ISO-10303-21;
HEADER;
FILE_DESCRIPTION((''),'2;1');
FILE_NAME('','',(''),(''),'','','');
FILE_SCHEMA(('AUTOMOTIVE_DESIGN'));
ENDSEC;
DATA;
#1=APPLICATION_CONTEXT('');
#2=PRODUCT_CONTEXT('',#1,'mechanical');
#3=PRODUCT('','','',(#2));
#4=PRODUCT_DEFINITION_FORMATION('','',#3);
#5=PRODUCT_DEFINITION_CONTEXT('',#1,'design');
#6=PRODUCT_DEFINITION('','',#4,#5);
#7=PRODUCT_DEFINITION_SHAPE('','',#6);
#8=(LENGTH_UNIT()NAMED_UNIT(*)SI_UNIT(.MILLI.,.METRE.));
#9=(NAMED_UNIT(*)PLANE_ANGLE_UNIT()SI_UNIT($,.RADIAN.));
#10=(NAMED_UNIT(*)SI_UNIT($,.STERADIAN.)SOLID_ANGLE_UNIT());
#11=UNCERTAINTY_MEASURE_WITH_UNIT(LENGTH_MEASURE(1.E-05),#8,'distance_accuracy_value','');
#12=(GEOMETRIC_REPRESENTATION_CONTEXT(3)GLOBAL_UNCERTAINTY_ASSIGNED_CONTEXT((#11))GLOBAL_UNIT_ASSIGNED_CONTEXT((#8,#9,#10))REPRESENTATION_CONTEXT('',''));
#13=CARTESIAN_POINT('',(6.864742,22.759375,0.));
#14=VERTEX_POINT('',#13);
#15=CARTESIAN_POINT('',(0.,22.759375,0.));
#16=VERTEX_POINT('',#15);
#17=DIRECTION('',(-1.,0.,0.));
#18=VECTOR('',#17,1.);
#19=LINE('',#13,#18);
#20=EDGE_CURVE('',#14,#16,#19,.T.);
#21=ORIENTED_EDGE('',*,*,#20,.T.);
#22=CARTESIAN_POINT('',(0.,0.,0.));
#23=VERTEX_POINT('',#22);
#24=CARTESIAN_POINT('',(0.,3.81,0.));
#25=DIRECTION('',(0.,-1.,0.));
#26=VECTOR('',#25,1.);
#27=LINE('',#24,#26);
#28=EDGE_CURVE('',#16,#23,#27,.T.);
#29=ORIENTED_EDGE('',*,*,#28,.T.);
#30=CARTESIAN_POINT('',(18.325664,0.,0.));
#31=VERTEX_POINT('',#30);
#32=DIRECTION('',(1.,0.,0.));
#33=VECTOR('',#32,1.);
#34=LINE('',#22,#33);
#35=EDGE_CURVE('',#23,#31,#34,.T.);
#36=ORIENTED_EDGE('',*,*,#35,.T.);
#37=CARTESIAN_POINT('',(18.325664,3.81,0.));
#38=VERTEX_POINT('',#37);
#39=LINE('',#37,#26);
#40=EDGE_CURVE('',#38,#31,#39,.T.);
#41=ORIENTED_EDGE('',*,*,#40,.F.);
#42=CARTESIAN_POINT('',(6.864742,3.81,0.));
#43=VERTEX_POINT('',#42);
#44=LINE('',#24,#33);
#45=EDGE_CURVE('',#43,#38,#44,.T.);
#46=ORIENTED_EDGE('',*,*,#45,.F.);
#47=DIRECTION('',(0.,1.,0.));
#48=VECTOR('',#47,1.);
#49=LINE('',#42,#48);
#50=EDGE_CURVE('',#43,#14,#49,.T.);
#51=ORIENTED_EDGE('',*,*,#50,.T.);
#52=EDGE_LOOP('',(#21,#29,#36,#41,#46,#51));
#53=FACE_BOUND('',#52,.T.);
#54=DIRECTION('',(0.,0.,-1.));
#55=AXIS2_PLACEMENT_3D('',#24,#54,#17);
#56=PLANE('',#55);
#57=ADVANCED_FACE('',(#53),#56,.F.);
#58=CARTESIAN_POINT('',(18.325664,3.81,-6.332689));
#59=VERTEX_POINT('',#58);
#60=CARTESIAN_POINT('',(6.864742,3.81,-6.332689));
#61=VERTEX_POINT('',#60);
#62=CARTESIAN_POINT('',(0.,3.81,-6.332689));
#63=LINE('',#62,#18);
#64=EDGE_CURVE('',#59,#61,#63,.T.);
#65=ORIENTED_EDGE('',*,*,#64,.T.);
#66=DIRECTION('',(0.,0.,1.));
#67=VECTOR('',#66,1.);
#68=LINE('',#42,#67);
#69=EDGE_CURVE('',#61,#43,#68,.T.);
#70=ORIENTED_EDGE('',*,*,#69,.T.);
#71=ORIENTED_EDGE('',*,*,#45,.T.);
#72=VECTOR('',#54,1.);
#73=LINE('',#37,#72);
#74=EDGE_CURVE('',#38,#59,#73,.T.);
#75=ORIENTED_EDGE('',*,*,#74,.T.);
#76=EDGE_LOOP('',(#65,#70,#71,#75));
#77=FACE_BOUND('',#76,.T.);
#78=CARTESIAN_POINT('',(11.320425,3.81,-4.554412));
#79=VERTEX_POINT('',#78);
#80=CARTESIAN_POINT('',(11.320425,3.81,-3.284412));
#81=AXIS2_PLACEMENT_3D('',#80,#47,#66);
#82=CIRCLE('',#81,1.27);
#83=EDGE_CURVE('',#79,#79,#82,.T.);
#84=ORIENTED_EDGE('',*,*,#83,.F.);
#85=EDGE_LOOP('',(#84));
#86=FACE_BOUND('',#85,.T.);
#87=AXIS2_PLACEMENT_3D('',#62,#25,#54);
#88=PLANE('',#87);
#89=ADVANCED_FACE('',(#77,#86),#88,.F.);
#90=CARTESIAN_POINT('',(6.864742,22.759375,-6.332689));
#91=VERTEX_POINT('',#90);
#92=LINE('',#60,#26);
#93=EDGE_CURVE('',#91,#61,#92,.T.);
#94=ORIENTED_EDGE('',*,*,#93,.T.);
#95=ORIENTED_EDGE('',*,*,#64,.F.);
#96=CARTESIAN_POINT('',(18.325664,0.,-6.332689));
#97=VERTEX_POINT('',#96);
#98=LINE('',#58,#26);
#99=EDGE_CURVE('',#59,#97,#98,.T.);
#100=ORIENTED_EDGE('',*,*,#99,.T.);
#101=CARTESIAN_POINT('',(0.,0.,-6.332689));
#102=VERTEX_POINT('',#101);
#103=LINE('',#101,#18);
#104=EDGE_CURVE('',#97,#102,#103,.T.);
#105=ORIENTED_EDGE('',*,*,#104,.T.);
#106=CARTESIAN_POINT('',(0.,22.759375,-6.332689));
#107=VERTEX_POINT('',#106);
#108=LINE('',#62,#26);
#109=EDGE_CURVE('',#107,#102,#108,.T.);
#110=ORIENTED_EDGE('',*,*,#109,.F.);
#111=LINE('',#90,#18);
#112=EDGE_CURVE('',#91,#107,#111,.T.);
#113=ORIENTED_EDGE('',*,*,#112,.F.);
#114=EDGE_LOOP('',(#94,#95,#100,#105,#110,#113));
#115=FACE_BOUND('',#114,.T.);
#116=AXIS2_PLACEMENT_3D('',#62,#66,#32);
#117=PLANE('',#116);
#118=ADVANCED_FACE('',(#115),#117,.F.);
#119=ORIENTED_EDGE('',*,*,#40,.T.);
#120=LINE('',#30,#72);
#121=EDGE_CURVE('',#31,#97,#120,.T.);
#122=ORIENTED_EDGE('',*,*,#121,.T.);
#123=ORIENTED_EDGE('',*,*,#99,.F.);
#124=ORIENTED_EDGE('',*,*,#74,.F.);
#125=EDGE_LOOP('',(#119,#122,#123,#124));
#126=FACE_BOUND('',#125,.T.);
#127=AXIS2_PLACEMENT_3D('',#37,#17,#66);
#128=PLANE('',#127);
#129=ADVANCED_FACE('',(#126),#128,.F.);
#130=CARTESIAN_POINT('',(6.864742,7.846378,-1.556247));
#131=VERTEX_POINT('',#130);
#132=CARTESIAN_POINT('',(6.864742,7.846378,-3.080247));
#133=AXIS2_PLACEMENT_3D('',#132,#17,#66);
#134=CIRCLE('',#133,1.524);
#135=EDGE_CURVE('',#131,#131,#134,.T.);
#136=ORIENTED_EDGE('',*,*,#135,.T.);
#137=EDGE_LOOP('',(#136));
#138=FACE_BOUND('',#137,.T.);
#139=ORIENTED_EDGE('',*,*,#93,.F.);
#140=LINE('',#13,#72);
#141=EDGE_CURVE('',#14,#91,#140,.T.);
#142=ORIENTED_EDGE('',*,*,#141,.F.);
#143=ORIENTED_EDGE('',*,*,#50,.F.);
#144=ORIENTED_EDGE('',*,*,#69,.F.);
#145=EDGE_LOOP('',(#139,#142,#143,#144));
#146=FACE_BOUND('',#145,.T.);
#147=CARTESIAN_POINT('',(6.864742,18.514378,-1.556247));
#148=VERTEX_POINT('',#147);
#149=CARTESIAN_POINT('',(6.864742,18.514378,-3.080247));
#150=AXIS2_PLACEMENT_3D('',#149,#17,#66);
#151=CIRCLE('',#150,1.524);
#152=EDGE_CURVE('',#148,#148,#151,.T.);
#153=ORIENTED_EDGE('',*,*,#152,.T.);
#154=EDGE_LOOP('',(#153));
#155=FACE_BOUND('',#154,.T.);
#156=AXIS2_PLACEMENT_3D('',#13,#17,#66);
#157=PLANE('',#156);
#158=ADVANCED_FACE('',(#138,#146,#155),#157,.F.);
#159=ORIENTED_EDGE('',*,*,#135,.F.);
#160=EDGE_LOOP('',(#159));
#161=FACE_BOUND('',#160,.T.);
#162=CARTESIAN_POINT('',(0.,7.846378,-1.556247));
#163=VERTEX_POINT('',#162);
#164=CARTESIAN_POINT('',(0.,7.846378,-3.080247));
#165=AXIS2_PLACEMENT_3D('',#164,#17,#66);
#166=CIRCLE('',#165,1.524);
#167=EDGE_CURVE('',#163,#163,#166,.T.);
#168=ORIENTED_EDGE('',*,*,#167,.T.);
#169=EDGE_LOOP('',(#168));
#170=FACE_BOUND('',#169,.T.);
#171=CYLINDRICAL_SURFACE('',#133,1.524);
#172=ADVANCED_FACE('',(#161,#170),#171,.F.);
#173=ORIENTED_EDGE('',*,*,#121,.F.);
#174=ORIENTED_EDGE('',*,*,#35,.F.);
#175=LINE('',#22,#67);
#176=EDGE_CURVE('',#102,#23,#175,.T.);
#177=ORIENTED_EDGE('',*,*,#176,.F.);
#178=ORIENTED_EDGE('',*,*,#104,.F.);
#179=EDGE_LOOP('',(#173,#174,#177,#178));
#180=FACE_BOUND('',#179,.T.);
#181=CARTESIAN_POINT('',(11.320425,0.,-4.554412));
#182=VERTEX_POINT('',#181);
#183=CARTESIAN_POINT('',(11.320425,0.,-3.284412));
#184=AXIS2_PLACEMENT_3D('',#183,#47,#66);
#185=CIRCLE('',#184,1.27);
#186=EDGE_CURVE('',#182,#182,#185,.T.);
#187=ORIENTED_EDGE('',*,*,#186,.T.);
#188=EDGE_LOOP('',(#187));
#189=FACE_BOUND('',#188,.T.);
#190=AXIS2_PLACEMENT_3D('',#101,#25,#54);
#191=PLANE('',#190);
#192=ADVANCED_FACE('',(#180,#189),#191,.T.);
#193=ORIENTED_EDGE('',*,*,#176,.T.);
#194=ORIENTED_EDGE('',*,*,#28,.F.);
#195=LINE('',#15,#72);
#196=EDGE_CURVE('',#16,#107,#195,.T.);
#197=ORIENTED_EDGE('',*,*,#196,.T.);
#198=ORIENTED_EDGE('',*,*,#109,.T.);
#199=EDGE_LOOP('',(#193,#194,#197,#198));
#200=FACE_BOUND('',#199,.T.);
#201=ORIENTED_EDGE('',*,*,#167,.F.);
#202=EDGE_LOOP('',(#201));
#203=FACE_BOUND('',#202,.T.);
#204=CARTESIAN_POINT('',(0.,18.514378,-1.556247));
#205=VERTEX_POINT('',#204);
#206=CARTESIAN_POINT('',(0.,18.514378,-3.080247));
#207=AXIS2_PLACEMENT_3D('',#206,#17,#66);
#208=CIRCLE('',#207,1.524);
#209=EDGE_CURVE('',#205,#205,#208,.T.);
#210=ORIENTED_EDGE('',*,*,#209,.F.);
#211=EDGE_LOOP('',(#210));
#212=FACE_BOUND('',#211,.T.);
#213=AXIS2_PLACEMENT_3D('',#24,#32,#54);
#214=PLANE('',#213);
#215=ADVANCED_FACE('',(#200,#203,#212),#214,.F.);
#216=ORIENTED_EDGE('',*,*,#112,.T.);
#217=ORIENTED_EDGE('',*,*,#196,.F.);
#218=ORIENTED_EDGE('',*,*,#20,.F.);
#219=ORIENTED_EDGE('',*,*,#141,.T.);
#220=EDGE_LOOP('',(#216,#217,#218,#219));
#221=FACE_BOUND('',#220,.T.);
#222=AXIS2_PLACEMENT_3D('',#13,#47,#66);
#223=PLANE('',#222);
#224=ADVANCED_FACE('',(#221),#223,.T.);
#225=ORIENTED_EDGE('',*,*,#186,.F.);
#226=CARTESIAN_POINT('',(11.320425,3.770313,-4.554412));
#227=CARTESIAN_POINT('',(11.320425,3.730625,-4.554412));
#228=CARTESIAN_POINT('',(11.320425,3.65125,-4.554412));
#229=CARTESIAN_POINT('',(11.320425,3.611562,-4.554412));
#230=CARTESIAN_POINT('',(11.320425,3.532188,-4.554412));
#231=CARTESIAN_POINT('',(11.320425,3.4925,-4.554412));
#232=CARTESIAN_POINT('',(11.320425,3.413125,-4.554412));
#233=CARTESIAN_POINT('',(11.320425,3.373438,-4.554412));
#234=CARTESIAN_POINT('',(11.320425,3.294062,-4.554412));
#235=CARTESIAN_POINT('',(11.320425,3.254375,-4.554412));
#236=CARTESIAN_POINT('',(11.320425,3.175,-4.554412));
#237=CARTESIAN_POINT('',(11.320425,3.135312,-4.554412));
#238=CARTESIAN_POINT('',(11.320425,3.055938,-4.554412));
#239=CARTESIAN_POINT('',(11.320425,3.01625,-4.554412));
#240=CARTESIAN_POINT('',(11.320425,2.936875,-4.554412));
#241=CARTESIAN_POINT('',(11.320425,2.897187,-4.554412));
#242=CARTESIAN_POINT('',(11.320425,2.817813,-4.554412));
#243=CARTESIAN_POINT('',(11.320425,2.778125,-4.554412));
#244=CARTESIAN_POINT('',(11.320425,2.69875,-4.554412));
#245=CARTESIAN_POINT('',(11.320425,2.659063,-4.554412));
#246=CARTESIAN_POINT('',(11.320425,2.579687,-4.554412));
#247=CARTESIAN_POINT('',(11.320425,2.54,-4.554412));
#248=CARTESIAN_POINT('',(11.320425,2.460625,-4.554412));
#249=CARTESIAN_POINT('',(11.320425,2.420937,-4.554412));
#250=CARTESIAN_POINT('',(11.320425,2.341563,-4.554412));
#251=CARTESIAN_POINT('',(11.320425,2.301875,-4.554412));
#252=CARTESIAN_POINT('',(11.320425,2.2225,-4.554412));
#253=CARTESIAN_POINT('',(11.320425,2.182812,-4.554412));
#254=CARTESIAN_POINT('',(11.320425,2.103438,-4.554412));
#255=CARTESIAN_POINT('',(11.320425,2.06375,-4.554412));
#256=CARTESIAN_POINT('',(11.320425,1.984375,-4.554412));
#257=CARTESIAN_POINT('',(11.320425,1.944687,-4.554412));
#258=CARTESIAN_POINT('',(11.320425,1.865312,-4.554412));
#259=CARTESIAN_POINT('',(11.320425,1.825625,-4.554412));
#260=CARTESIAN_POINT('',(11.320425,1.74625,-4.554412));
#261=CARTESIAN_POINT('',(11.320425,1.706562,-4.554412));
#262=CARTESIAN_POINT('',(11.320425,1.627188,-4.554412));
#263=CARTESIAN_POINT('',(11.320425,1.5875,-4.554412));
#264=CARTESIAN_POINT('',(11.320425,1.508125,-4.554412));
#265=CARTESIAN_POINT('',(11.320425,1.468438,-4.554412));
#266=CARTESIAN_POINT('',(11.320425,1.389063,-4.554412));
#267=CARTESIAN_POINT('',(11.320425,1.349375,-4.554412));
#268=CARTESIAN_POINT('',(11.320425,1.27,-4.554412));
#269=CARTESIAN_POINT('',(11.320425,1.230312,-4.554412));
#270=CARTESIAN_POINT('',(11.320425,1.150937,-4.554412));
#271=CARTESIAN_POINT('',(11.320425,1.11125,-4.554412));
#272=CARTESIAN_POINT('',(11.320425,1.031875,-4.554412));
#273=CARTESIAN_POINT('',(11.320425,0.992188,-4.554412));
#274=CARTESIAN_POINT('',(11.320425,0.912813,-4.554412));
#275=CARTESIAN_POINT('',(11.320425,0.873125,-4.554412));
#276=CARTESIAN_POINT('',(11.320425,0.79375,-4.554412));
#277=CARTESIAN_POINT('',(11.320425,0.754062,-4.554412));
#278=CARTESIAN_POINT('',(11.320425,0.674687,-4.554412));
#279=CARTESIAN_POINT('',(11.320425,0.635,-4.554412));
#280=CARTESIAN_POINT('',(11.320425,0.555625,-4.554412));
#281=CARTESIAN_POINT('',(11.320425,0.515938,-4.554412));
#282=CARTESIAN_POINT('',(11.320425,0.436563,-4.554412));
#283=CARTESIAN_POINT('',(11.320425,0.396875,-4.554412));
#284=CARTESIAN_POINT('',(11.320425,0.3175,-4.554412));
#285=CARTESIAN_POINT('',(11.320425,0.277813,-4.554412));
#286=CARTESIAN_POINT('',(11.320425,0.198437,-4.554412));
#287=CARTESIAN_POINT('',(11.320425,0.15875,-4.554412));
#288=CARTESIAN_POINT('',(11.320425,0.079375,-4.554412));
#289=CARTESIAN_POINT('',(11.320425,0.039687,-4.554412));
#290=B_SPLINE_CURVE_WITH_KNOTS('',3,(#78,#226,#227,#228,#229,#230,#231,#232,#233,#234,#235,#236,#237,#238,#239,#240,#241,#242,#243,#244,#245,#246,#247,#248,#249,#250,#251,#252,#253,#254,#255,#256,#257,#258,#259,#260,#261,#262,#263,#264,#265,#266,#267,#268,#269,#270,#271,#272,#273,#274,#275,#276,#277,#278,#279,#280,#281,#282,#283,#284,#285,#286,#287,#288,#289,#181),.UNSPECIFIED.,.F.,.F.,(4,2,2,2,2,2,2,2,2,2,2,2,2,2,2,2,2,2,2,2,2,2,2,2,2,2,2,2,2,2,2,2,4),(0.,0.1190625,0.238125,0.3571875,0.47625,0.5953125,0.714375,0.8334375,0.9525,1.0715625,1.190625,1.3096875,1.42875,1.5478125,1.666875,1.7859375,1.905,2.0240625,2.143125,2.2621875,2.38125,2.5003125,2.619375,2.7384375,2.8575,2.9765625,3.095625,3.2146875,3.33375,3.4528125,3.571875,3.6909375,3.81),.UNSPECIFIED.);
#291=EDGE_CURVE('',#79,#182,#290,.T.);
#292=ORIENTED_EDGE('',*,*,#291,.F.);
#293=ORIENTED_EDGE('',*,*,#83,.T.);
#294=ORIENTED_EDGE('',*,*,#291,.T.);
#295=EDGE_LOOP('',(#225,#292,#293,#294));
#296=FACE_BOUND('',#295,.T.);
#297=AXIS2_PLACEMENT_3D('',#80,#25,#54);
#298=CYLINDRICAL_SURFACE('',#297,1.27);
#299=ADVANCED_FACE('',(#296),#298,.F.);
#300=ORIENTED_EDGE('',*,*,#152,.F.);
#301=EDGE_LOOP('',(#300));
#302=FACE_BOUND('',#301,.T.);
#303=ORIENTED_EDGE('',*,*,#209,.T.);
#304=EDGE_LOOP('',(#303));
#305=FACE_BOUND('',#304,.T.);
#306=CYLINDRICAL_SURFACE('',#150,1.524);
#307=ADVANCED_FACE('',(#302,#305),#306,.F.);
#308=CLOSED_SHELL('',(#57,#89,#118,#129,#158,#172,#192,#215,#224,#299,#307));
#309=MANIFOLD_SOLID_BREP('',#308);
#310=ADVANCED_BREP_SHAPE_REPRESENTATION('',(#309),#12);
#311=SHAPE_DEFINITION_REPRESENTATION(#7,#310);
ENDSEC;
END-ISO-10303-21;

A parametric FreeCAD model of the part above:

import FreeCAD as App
import Part
import Sketcher

V = App.Vector
Q = App.Units.Quantity

doc = App.newDocument("Part")
body = doc.addObject("PartDesign::Body", "Body")

# Sketch on XZ plane
sketch1 = body.newObject("Sketcher::SketchObject", "Sketch")
sketch1.AttachmentSupport = (doc.getObject("XZ_Plane"), [""])
sketch1.MapMode = "FlatFace"
sketch1.addGeometry([
    Part.LineSegment(V(0, -6.3, 0), V(0, 0, 0)),  # 0
    Part.LineSegment(V(0, 0, 0), V(18.3, 0, 0)),  # 1
    Part.LineSegment(V(18.3, 0, 0), V(18.3, -6.3, 0)),  # 2
    Part.LineSegment(V(18.3, -6.3, 0), V(0, -6.3, 0)),  # 3
    Part.Circle(V(11.3, -3.3, 0), V(0, 0, 1), 1.3),  # 4
], False)
sketch1.addConstraint([
    Sketcher.Constraint("Coincident", 0, 2, 1, 1),
    Sketcher.Constraint("Coincident", 1, 2, 2, 1),
    Sketcher.Constraint("Coincident", 2, 2, 3, 1),
    Sketcher.Constraint("Coincident", 3, 2, 0, 1),
    Sketcher.Constraint("Vertical", 0),
    Sketcher.Constraint("Horizontal", 1),
    Sketcher.Constraint("Vertical", 2),
    Sketcher.Constraint("Horizontal", 3),
    Sketcher.Constraint("Coincident", 0, 2, -1, 1),
    Sketcher.Constraint("Diameter", 4, Q("0.1 in")),
    Sketcher.Constraint("DistanceY", 0, 1, 0, 2, Q("6.332689 mm")),
    Sketcher.Constraint("DistanceX", 1, 1, 1, 2, Q("18.325664 mm")),
    Sketcher.Constraint("DistanceY", 4, 3, -1, 1, Q("3.284412 mm")),
    Sketcher.Constraint("DistanceX", 4, 3, 1, 2, Q("7.00524 mm")),
])
pad1 = body.newObject("PartDesign::Pad", "Pad")
pad1.Profile = sketch1
pad1.Length = Q("0.15 in")
pad1.Reversed = True

# Sketch on YZ plane
sketch2 = body.newObject("Sketcher::SketchObject", "Sketch001")
sketch2.AttachmentSupport = (doc.getObject("YZ_Plane"), [""])
sketch2.MapMode = "FlatFace"
sketch2.addGeometry([
    Part.LineSegment(V(22.8, -6.3, 0), V(3.8, -6.3, 0)),  # 0
    Part.LineSegment(V(3.8, -6.3, 0), V(3.8, 0, 0)),  # 1
    Part.LineSegment(V(3.8, 0, 0), V(22.8, 0, 0)),  # 2
    Part.LineSegment(V(22.8, 0, 0), V(22.8, -6.3, 0)),  # 3
    Part.Circle(V(7.8, -3.1, 0), V(0, 0, 1), 1.5),  # 4
    Part.Circle(V(18.5, -3.1, 0), V(0, 0, 1), 1.5),  # 5
], False)
sketch2.addConstraint([
    Sketcher.Constraint("Coincident", 0, 2, 1, 1),
    Sketcher.Constraint("Coincident", 1, 2, 2, 1),
    Sketcher.Constraint("Coincident", 2, 2, 3, 1),
    Sketcher.Constraint("Coincident", 3, 2, 0, 1),
    Sketcher.Constraint("Horizontal", 0),
    Sketcher.Constraint("Vertical", 1),
    Sketcher.Constraint("Horizontal", 2),
    Sketcher.Constraint("Vertical", 3),
    Sketcher.Constraint("Equal", 4, 5),
    Sketcher.Constraint("PointOnObject", 1, 2, -1),
    Sketcher.Constraint("Horizontal", 4, 3, 5, 3),
    Sketcher.Constraint("Diameter", 4, Q("0.12 in")),
    Sketcher.Constraint("DistanceX", -1, 1, 0, 2, Q("0.15 in")),
    Sketcher.Constraint("DistanceX", 4, 3, 5, 3, Q("0.42 in")),
    Sketcher.Constraint("DistanceY", 1, 1, 1, 2, Q("6.332689 mm")),
    Sketcher.Constraint("DistanceX", 0, 2, 0, 1, Q("18.949375 mm")),
    Sketcher.Constraint("DistanceX", -1, 1, 4, 3, Q("7.846378 mm")),
    Sketcher.Constraint("DistanceY", 4, 3, -1, 1, Q("3.080247 mm")),
])
pad2 = body.newObject("PartDesign::Pad", "Pad001")
pad2.Profile = sketch2
pad2.Length = 6.864742

doc.recompute()
